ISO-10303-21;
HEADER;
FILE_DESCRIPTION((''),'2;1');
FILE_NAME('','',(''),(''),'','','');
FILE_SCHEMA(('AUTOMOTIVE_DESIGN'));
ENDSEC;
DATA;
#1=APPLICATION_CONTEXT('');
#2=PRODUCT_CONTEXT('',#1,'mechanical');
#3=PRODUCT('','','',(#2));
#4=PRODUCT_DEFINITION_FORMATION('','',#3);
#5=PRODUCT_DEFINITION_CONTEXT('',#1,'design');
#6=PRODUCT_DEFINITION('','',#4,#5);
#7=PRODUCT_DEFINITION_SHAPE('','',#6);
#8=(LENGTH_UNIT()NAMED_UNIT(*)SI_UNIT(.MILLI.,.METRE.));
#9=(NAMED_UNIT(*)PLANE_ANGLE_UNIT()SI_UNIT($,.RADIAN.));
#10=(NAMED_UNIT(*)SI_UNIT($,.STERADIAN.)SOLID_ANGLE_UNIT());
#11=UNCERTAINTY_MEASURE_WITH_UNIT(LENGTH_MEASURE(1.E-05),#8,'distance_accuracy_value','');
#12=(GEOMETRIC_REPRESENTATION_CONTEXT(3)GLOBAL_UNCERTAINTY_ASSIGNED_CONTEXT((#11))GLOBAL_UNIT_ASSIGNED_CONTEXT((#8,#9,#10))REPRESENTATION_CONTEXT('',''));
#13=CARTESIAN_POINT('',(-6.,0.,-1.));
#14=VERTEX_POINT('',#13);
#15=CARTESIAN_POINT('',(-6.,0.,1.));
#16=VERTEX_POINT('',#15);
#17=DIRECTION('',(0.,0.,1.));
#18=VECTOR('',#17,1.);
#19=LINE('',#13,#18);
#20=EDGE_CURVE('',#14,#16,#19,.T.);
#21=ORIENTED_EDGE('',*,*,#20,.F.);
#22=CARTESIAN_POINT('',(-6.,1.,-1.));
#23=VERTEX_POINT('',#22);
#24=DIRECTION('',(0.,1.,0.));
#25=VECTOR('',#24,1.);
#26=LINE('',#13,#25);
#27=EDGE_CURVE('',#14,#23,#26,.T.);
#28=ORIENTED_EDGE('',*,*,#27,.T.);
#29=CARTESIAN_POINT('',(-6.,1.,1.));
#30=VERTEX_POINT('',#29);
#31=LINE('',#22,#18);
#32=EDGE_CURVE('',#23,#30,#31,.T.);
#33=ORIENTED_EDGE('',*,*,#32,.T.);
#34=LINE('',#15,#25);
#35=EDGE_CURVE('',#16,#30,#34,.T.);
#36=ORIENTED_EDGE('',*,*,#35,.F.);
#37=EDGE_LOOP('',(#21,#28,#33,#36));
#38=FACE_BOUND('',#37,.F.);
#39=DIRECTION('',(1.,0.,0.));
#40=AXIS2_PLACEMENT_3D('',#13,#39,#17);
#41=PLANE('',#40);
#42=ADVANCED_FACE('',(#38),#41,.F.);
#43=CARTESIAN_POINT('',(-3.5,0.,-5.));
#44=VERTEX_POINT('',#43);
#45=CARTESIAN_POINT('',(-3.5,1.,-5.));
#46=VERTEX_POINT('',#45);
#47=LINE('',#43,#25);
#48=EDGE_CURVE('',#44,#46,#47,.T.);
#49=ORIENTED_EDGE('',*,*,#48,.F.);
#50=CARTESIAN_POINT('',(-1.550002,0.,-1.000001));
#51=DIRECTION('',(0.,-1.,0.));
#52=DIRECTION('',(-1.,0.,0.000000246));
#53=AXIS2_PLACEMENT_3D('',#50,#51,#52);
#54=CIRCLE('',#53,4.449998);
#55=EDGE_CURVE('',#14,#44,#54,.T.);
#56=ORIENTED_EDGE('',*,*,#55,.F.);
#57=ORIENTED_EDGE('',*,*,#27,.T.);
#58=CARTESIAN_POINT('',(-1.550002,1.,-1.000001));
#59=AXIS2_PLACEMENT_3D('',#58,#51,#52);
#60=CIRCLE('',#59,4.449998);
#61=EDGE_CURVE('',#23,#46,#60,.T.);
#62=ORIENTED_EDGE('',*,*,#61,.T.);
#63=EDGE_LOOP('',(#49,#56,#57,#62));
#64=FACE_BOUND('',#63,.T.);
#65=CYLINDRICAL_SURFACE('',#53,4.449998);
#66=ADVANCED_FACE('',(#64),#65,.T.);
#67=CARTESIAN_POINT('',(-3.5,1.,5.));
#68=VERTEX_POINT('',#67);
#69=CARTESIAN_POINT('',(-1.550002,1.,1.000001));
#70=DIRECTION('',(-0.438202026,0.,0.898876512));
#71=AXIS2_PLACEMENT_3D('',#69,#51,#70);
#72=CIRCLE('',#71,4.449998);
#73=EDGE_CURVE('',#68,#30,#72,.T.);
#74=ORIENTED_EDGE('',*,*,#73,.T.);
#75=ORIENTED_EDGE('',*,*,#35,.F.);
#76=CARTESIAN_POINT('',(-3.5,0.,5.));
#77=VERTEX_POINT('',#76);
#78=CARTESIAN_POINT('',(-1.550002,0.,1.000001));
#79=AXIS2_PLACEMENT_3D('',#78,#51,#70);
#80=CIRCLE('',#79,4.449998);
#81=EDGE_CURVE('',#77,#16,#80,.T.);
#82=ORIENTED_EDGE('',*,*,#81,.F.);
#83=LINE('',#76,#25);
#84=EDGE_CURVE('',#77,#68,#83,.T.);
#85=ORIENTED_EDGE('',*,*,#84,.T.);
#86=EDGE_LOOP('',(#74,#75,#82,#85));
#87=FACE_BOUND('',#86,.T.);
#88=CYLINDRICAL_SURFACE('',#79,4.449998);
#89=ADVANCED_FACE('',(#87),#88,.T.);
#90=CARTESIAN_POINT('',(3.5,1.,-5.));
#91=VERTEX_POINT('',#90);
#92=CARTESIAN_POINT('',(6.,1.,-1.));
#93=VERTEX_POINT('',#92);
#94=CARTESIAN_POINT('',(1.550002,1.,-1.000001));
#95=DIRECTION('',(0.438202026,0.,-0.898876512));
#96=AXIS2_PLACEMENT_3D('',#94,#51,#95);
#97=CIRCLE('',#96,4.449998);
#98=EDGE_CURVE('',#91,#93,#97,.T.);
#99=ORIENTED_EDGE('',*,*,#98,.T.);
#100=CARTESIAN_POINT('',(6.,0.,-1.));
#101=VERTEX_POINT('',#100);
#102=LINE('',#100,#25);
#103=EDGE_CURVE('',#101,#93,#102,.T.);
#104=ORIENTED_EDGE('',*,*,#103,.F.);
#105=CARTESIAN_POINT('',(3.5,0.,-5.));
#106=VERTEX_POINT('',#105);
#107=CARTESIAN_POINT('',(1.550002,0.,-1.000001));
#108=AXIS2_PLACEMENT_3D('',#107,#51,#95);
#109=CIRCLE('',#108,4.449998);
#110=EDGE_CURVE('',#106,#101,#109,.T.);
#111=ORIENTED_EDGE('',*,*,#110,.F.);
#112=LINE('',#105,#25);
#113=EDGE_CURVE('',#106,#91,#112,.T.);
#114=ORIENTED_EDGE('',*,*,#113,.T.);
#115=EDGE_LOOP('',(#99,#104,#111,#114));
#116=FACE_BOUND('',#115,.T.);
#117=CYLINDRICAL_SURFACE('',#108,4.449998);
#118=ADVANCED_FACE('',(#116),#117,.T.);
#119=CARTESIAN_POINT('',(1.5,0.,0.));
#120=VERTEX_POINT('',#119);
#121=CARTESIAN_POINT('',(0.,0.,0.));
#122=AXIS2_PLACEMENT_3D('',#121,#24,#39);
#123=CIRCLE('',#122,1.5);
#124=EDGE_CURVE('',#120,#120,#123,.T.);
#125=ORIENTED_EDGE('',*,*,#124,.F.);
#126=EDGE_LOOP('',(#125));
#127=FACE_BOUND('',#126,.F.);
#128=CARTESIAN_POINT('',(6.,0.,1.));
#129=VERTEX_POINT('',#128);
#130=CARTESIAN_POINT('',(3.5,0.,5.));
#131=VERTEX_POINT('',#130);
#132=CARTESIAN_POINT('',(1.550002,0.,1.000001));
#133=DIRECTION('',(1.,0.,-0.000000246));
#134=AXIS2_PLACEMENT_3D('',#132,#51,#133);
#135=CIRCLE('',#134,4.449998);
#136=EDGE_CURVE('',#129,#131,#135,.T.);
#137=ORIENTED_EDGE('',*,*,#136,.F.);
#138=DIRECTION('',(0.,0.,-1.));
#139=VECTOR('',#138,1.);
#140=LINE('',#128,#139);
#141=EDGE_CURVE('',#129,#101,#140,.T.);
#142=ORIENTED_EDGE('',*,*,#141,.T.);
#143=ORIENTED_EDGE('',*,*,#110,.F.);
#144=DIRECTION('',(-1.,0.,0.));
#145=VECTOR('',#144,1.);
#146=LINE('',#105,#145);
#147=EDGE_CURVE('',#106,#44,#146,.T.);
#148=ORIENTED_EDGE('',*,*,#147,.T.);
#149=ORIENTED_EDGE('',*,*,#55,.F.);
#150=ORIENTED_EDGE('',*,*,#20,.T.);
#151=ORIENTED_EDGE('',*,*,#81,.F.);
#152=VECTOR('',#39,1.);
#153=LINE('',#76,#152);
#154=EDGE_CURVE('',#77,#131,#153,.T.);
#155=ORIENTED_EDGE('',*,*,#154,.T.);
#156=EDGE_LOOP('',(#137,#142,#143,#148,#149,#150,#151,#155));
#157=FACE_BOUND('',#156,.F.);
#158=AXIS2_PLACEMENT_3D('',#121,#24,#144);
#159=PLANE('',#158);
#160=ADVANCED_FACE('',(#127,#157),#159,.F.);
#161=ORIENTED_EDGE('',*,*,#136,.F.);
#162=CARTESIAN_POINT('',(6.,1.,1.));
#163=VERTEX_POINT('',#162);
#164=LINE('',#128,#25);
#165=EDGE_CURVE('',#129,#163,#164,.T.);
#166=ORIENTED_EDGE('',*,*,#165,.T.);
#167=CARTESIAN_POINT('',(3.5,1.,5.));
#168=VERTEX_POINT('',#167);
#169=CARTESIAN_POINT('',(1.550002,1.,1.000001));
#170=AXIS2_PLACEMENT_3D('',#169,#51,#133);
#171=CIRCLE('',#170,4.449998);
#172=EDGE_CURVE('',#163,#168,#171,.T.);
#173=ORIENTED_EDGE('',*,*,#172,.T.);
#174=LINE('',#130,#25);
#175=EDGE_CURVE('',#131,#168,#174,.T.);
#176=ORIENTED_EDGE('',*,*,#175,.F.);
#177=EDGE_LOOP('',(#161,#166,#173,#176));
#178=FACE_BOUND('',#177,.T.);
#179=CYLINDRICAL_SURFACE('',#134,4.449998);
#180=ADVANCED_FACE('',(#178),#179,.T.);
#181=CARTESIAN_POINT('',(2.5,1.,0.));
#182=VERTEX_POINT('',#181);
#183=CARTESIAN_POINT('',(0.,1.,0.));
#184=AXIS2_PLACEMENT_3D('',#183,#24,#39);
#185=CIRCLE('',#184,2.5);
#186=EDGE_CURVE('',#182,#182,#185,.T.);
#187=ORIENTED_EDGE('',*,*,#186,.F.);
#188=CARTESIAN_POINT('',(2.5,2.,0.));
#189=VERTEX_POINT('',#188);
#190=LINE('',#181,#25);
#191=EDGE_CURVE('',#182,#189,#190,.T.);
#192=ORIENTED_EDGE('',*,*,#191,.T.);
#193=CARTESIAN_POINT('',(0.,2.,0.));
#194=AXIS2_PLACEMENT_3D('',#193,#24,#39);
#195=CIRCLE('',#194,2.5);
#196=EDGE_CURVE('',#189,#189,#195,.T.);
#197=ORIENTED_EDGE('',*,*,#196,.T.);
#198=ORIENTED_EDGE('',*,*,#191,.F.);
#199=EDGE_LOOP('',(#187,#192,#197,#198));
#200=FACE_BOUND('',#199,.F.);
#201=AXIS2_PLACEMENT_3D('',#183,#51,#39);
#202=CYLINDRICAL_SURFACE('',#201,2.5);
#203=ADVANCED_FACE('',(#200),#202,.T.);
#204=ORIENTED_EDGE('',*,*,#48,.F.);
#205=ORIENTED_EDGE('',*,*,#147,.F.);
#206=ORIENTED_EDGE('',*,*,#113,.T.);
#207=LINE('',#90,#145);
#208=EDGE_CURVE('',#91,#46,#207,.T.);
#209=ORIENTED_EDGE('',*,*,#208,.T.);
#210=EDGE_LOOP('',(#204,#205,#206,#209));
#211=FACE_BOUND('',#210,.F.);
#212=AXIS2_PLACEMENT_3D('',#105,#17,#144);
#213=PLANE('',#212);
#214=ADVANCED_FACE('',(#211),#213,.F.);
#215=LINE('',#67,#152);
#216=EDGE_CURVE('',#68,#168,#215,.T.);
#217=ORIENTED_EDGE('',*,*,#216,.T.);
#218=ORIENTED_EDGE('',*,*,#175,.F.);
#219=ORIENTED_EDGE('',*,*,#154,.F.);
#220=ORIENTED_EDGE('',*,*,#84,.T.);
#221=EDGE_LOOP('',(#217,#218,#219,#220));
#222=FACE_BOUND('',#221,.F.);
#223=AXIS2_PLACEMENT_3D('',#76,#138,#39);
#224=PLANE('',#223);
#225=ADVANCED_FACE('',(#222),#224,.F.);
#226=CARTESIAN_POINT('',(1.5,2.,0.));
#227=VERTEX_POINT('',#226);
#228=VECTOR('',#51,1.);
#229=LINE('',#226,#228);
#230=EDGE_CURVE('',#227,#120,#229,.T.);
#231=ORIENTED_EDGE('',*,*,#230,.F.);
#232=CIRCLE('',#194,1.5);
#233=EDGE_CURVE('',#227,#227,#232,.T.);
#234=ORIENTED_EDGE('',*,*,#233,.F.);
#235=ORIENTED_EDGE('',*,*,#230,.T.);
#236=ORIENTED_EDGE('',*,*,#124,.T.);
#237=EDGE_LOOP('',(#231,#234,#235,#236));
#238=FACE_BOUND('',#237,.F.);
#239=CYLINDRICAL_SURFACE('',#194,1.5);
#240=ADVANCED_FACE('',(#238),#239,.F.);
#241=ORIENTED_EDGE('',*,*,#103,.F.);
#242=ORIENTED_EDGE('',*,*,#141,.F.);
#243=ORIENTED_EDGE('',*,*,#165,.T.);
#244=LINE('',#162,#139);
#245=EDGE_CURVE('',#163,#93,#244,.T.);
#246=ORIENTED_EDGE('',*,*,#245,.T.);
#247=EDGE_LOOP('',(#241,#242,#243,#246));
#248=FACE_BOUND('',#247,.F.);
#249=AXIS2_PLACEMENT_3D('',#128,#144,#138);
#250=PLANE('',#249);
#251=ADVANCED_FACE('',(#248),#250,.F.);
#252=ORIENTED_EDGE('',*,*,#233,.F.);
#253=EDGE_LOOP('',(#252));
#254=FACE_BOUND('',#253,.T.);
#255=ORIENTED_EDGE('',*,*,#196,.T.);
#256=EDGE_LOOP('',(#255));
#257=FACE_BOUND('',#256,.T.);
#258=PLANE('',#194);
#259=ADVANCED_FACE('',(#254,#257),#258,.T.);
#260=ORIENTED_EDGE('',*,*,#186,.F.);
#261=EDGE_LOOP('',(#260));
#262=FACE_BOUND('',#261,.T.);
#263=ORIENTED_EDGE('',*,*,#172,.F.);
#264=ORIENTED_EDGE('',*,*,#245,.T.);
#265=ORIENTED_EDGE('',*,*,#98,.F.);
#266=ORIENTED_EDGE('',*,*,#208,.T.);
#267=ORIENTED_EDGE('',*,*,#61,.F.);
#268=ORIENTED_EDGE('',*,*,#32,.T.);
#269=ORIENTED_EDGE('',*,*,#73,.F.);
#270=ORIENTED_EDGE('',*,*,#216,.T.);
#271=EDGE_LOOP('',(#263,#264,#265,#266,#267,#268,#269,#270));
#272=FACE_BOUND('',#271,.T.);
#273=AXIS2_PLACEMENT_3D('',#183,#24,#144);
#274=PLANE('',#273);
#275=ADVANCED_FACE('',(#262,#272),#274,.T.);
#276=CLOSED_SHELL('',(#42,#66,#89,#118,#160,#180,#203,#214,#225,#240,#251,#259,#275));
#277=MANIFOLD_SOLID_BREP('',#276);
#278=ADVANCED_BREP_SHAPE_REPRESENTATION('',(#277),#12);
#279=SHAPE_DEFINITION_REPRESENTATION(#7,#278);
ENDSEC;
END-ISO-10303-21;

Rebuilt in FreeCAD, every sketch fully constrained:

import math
import FreeCAD as App
import Part
import Sketcher
from FreeCAD import Vector

doc = App.newDocument("Part")
body = doc.addObject("PartDesign::Body", "Body")

# Sketch on XZ plane
sketch1 = doc.addObject("Sketcher::SketchObject", "Sketch")
body.addObject(sketch1)
sketch1.AttachmentSupport = (doc.XZ_Plane, [""])
sketch1.MapMode = "FlatFace"
sketch1.addGeometry(Part.LineSegment(Vector(3.5, 5, 0), Vector(-3.5, 5, 0)), False)
sketch1.addGeometry(Part.ArcOfCircle(Part.Circle(Vector(-1.6, 1, 0), Vector(0, 0, 1), 4.4), math.radians(116), math.radians(180)), False)
sketch1.addGeometry(Part.LineSegment(Vector(-6, 1, 0), Vector(-6, -1, 0)), False)
sketch1.addGeometry(Part.ArcOfCircle(Part.Circle(Vector(-1.6, -1, 0), Vector(0, 0, 1), 4.4), math.radians(180), math.radians(244)), False)
sketch1.addGeometry(Part.LineSegment(Vector(-3.5, -5, 0), Vector(3.5, -5, 0)), False)
sketch1.addGeometry(Part.ArcOfCircle(Part.Circle(Vector(1.6, -1, 0), Vector(0, 0, 1), 4.4), math.radians(-64), math.radians(0)), False)
sketch1.addGeometry(Part.LineSegment(Vector(6, -1, 0), Vector(6, 1, 0)), False)
sketch1.addGeometry(Part.ArcOfCircle(Part.Circle(Vector(1.6, 1, 0), Vector(0, 0, 1), 4.4), math.radians(0), math.radians(64)), False)
sketch1.addConstraint(Sketcher.Constraint("Coincident", 0, 2, 1, 1))
sketch1.addConstraint(Sketcher.Constraint("Tangent", 1, 2, 2, 1))
sketch1.addConstraint(Sketcher.Constraint("Tangent", 2, 2, 3, 1))
sketch1.addConstraint(Sketcher.Constraint("Coincident", 3, 2, 4, 1))
sketch1.addConstraint(Sketcher.Constraint("Coincident", 4, 2, 5, 1))
sketch1.addConstraint(Sketcher.Constraint("Tangent", 5, 2, 6, 1))
sketch1.addConstraint(Sketcher.Constraint("Tangent", 6, 2, 7, 1))
sketch1.addConstraint(Sketcher.Constraint("Coincident", 7, 2, 0, 1))
sketch1.addConstraint(Sketcher.Constraint("Horizontal", 0))
sketch1.addConstraint(Sketcher.Constraint("Vertical", 2))
sketch1.addConstraint(Sketcher.Constraint("Horizontal", 4))
sketch1.addConstraint(Sketcher.Constraint("Vertical", 6))
sketch1.addConstraint(Sketcher.Constraint("Equal", 1, 3))
sketch1.addConstraint(Sketcher.Constraint("Equal", 3, 5))
sketch1.addConstraint(Sketcher.Constraint("Equal", 5, 7))
sketch1.addConstraint(Sketcher.Constraint("Symmetric", 1, 3, 5, 3, -1, 1))
sketch1.addConstraint(Sketcher.Constraint("Symmetric", 3, 2, 7, 2, -1, 1))
sketch1.addConstraint(Sketcher.Constraint("Horizontal", 3, 3, 5, 3))
sketch1.addConstraint(Sketcher.Constraint("DistanceX", 0, 2, 0, 1, 7.0))
sketch1.addConstraint(Sketcher.Constraint("DistanceY", 2, 2, 2, 1, 2.0))
sketch1.addConstraint(Sketcher.Constraint("Radius", 1, 4.449998))
sketch1.addConstraint(Sketcher.Constraint("DistanceY", -1, 1, 0, 2, 5.0))
pad1 = doc.addObject("PartDesign::Pad", "Pad")
body.addObject(pad1)
pad1.Profile = sketch1
pad1.Length = 1
pad1.Reversed = True

# Sketch on XZ plane
sketch2 = doc.addObject("Sketcher::SketchObject", "Sketch001")
body.addObject(sketch2)
sketch2.AttachmentSupport = (doc.XZ_Plane, [""])
sketch2.MapMode = "FlatFace"
sketch2.AttachmentOffset = App.Placement(Vector(0, 0, -1), App.Rotation())
sketch2.addGeometry(Part.Circle(Vector(0, 0, 0), Vector(0, 0, 1), 2.5), False)
sketch2.addConstraint(Sketcher.Constraint("Coincident", 0, 3, -1, 1))
sketch2.addConstraint(Sketcher.Constraint("Diameter", 0, 5.0))
pad2 = doc.addObject("PartDesign::Pad", "Pad001")
body.addObject(pad2)
pad2.Profile = sketch2
pad2.Length = 1
pad2.Reversed = True

# Sketch on XZ plane
sketch3 = doc.addObject("Sketcher::SketchObject", "Sketch002")
body.addObject(sketch3)
sketch3.AttachmentSupport = (doc.XZ_Plane, [""])
sketch3.MapMode = "FlatFace"
sketch3.AttachmentOffset = App.Placement(Vector(0, 0, -2), App.Rotation())
sketch3.addGeometry(Part.Circle(Vector(0, 0, 0), Vector(0, 0, 1), 1.5), False)
sketch3.addConstraint(Sketcher.Constraint("Coincident", 0, 3, -1, 1))
sketch3.addConstraint(Sketcher.Constraint("Diameter", 0, 3.0))
pocket1 = doc.addObject("PartDesign::Pocket", "Pocket")
body.addObject(pocket1)
pocket1.Profile = sketch3
pocket1.Type = "ThroughAll"
pocket1.Reversed = True

doc.recompute()
